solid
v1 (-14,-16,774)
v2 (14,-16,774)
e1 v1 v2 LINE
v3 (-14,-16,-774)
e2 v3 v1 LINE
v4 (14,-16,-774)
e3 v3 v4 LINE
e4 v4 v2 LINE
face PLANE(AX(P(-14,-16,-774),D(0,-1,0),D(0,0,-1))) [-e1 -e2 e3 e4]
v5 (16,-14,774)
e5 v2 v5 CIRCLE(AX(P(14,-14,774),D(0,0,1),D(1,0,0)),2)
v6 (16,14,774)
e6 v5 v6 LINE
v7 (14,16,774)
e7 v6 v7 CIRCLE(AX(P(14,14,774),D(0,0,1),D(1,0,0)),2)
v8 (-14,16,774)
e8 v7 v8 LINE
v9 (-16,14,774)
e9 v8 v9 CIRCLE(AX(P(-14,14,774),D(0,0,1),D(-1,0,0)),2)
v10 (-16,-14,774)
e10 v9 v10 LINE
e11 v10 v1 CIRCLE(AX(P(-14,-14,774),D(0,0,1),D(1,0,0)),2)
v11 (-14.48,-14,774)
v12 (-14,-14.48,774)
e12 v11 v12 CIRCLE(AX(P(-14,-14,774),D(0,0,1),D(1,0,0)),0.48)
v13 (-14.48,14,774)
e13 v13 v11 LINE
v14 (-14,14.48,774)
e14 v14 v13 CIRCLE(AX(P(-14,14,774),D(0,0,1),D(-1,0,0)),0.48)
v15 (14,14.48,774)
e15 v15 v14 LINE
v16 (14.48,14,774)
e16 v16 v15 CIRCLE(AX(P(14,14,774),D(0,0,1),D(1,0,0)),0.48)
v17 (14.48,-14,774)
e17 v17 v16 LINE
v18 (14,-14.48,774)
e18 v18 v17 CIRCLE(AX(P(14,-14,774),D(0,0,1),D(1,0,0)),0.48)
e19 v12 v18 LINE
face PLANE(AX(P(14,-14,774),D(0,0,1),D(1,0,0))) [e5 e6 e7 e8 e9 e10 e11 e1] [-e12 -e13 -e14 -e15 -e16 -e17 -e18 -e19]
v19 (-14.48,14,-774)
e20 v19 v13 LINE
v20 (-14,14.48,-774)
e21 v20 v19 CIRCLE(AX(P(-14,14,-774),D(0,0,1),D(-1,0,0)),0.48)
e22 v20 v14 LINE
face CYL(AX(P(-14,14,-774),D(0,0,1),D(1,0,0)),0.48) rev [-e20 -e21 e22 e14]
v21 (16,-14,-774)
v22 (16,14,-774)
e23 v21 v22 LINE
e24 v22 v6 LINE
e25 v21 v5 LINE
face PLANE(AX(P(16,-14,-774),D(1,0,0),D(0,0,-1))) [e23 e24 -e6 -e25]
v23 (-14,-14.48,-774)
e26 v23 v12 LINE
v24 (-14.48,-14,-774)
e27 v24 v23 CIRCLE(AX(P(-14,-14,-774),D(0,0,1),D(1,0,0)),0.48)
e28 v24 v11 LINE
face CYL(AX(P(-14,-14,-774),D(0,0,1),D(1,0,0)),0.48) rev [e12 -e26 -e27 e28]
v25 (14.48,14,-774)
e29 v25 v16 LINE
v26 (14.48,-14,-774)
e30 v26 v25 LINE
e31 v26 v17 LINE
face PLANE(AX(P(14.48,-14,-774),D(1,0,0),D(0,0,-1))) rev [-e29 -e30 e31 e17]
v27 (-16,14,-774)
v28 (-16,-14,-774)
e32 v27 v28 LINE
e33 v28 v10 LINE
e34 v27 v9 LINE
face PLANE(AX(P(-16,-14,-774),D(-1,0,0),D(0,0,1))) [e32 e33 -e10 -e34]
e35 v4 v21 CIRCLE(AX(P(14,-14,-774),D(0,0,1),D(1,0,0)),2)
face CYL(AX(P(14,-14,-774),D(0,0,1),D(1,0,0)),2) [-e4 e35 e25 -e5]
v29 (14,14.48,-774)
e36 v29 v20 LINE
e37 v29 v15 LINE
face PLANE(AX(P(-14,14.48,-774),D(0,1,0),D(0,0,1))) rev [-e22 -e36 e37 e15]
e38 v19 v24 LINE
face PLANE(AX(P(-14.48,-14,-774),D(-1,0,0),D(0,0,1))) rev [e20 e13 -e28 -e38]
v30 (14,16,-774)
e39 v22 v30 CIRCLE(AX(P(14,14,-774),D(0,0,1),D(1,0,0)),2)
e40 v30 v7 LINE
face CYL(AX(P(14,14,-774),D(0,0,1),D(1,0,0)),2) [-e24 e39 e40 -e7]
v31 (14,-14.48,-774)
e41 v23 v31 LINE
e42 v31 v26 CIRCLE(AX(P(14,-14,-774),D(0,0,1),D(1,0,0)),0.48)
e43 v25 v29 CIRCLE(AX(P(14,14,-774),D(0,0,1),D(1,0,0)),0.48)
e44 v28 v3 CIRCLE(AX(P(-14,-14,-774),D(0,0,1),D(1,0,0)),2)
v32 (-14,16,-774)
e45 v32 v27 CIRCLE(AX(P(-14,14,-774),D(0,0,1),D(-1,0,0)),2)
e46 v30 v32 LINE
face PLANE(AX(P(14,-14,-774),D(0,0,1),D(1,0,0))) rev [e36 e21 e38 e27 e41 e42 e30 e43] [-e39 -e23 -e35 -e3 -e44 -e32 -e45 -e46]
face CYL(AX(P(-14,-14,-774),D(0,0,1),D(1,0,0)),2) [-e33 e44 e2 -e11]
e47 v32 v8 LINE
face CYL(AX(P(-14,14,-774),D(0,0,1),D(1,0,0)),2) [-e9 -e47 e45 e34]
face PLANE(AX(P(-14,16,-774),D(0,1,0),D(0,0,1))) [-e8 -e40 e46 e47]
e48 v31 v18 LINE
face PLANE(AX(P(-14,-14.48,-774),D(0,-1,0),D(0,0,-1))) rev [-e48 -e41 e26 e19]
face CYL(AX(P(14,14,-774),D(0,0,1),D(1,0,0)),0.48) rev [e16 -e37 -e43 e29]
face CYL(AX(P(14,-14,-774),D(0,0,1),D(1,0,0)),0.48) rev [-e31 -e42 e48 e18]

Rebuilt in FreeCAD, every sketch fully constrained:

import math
import FreeCAD as App
import Part
import Sketcher

V = App.Vector

doc = App.newDocument("Part")
params = doc.addObject("Spreadsheet::Sheet", "Params")
for row, (alias, value) in enumerate([
    ("sketch1_radius", "2 mm"),
    ("sketch1_width", "28 mm"),
    ("sketch1_radius2", "0.48 mm"),
    ("pad1_length", "774 mm"),
    ("pad1_length2", "774 mm"),
], start=1):
    params.set(f"A{row}", alias)
    params.set(f"B{row}", "=" + value)
    params.setAlias(f"B{row}", alias)

body = doc.addObject("PartDesign::Body", "Body")

# Sketch on XY plane
sketch1 = doc.addObject("Sketcher::SketchObject", "Sketch")
body.addObject(sketch1)
sketch1.AttachmentSupport = (doc.XY_Plane, [""])
sketch1.MapMode = "FlatFace"
sketch1.addGeometry([
    Part.LineSegment(V(-14, -16, 0), V(14, -16, 0)),  # 0
    Part.ArcOfCircle(Part.Circle(V(14, -14, 0), V(0, 0, 1), 2), math.radians(-90), math.radians(0)),  # 1
    Part.LineSegment(V(16, -14, 0), V(16, 14, 0)),  # 2
    Part.ArcOfCircle(Part.Circle(V(14, 14, 0), V(0, 0, 1), 2), math.radians(0), math.radians(90)),  # 3
    Part.LineSegment(V(14, 16, 0), V(-14, 16, 0)),  # 4
    Part.ArcOfCircle(Part.Circle(V(-14, 14, 0), V(0, 0, 1), 2), math.radians(90), math.radians(180)),  # 5
    Part.LineSegment(V(-16, 14, 0), V(-16, -14, 0)),  # 6
    Part.ArcOfCircle(Part.Circle(V(-14, -14, 0), V(0, 0, 1), 2), math.radians(-180), math.radians(-90)),  # 7
    Part.ArcOfCircle(Part.Circle(V(-14, 14, 0), V(0, 0, 1), 0.48), math.radians(90), math.radians(180)),  # 8
    Part.LineSegment(V(-14, 14.48, 0), V(14, 14.48, 0)),  # 9
    Part.ArcOfCircle(Part.Circle(V(14, 14, 0), V(0, 0, 1), 0.48), math.radians(0), math.radians(90)),  # 10
    Part.LineSegment(V(14.48, 14, 0), V(14.48, -14, 0)),  # 11
    Part.ArcOfCircle(Part.Circle(V(14, -14, 0), V(0, 0, 1), 0.48), math.radians(-90), math.radians(0)),  # 12
    Part.LineSegment(V(14, -14.48, 0), V(-14, -14.48, 0)),  # 13
    Part.ArcOfCircle(Part.Circle(V(-14, -14, 0), V(0, 0, 1), 0.48), math.radians(180), math.radians(270)),  # 14
    Part.LineSegment(V(-14.48, -14, 0), V(-14.48, 14, 0)),  # 15
], False)
sketch1.addConstraint([
    Sketcher.Constraint("Tangent", 0, 2, 1, 1),
    Sketcher.Constraint("Tangent", 1, 2, 2, 1),
    Sketcher.Constraint("Tangent", 2, 2, 3, 1),
    Sketcher.Constraint("Tangent", 3, 2, 4, 1),
    Sketcher.Constraint("Tangent", 4, 2, 5, 1),
    Sketcher.Constraint("Tangent", 5, 2, 6, 1),
    Sketcher.Constraint("Tangent", 6, 2, 7, 1),
    Sketcher.Constraint("Tangent", 7, 2, 0, 1),
    Sketcher.Constraint("Tangent", 8, 1, 9, 1),
    Sketcher.Constraint("Tangent", 9, 2, 10, 2),
    Sketcher.Constraint("Tangent", 10, 1, 11, 1),
    Sketcher.Constraint("Tangent", 11, 2, 12, 2),
    Sketcher.Constraint("Tangent", 12, 1, 13, 1),
    Sketcher.Constraint("Tangent", 13, 2, 14, 2),
    Sketcher.Constraint("Tangent", 14, 1, 15, 1),
    Sketcher.Constraint("Tangent", 15, 2, 8, 2),
    Sketcher.Constraint("Horizontal", 0),
    Sketcher.Constraint("Vertical", 2),
    Sketcher.Constraint("Horizontal", 4),
    Sketcher.Constraint("Vertical", 6),
    Sketcher.Constraint("Horizontal", 9),
    Sketcher.Constraint("Vertical", 11),
    Sketcher.Constraint("Horizontal", 13),
    Sketcher.Constraint("Vertical", 15),
    Sketcher.Constraint("Coincident", 8, 3, 5, 3),
    Sketcher.Constraint("Coincident", 10, 3, 3, 3),
    Sketcher.Constraint("Coincident", 12, 3, 1, 3),
    Sketcher.Constraint("Equal", 1, 3),
    Sketcher.Constraint("Equal", 3, 5),
    Sketcher.Constraint("Equal", 5, 7),
    Sketcher.Constraint("Equal", 12, 14),
    Sketcher.Constraint("Symmetric", 1, 3, 5, 3, -1, 1),
    Sketcher.Constraint("Equal", 13, 2),
    Sketcher.Constraint("Radius", 1, 2.0),
    Sketcher.Constraint("DistanceX", 0, 1, 0, 2, 28.0),
    Sketcher.Constraint("Radius", 8, 0.48),
])
sketch1.setExpression("Constraints[33]", "Params.sketch1_radius")
sketch1.setExpression("Constraints[34]", "Params.sketch1_width")
sketch1.setExpression("Constraints[35]", "Params.sketch1_radius2")
pad1 = doc.addObject("PartDesign::Pad", "Pad")
body.addObject(pad1)
pad1.Profile = sketch1
pad1.Type = "TwoLengths"
pad1.setExpression("Length", "Params.pad1_length")
pad1.setExpression("Length2", "Params.pad1_length2")

doc.recompute()
